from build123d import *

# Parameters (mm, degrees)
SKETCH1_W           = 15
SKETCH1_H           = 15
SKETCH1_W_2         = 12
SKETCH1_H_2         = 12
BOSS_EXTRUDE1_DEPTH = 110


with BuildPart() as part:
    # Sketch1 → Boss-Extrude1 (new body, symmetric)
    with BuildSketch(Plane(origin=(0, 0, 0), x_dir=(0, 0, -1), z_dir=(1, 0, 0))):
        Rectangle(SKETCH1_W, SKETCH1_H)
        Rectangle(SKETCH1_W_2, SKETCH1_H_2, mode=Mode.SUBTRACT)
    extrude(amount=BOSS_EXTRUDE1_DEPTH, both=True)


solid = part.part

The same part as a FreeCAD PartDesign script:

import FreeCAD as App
import Part
import Sketcher

V = App.Vector
Q = App.Units.Quantity


def add_polygon(sketch, points):
    """Adds a closed chain of lines whose ends are joined by coincident constraints."""
    first, n = sketch.GeometryCount, len(points)
    for a, b in zip(points, points[1:] + points[:1]):
        sketch.addGeometry(Part.LineSegment(App.Vector(*a, 0), App.Vector(*b, 0)), False)
    for i in range(n):
        sketch.addConstraint(Sketcher.Constraint("Coincident", first + i, 2, first + (i + 1) % n, 1))

doc = App.newDocument("Part")
body = doc.addObject("PartDesign::Body", "Body")

sketch1 = doc.addObject("Sketcher::SketchObject", "Sketch")
body.addObject(sketch1)
sketch1.AttachmentSupport = (doc.YZ_Plane, [""])
sketch1.MapMode = "FlatFace"
add_polygon(sketch1, [(8, 8), (-8, 8), (-8, -8), (8, -8)])
add_polygon(sketch1, [(-6, -6), (-6, 6), (6, 6), (6, -6)])
sketch1.addConstraint(Sketcher.Constraint("Horizontal", 0))
sketch1.addConstraint(Sketcher.Constraint("Vertical", 1))
sketch1.addConstraint(Sketcher.Constraint("Horizontal", 2))
sketch1.addConstraint(Sketcher.Constraint("Vertical", 3))
sketch1.addConstraint(Sketcher.Constraint("Vertical", 4))
sketch1.addConstraint(Sketcher.Constraint("Horizontal", 5))
sketch1.addConstraint(Sketcher.Constraint("Vertical", 6))
sketch1.addConstraint(Sketcher.Constraint("Horizontal", 7))
sketch1.addConstraint(Sketcher.Constraint("Symmetric", 0, 2, 2, 2, -1, 1))
sketch1.addConstraint(Sketcher.Constraint("Symmetric", 4, 2, 6, 2, -1, 1))
sketch1.addConstraint(Sketcher.Constraint("Equal", 2, 1))
sketch1.addConstraint(Sketcher.Constraint("Equal", 7, 4))
sketch1.addConstraint(Sketcher.Constraint("DistanceX", 0, 2, 0, 1, Q("15 mm")))
sketch1.addConstraint(Sketcher.Constraint("DistanceX", 5, 1, 5, 2, Q("12 mm")))
pad1 = doc.addObject("PartDesign::Pad", "Pad")
body.addObject(pad1)
pad1.Profile = sketch1
pad1.Length = 220
pad1.Midplane = True

doc.recompute()
